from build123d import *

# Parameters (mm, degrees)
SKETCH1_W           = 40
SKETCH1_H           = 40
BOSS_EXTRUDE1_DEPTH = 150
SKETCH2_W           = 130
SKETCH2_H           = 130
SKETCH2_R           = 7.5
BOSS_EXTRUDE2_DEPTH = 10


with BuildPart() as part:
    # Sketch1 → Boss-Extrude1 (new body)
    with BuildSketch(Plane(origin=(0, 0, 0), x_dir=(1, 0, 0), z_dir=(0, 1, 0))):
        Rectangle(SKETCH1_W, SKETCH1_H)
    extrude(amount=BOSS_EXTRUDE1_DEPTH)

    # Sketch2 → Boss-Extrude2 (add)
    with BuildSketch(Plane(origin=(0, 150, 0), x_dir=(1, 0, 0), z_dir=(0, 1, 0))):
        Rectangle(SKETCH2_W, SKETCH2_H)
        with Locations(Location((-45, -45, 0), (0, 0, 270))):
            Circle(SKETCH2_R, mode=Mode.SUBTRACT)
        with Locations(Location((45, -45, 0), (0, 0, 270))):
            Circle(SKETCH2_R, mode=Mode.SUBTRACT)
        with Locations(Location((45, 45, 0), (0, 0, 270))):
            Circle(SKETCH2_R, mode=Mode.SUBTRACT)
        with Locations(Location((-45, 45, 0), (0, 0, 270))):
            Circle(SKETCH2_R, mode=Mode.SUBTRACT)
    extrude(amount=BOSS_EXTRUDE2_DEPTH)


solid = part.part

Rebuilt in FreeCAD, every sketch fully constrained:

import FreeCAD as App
import Part
import Sketcher
from FreeCAD import Vector
Q = App.Units.Quantity

doc = App.newDocument("Part")
body = doc.addObject("PartDesign::Body", "Body")

# Sketch on XZ plane
sketch1 = doc.addObject("Sketcher::SketchObject", "Sketch")
body.addObject(sketch1)
sketch1.AttachmentSupport = (doc.XZ_Plane, [""])
sketch1.MapMode = "FlatFace"
sketch1.addGeometry([
    Part.LineSegment(Vector(-20, -20, 0), Vector(-20, 20, 0)),
    Part.LineSegment(Vector(-20, 20, 0), Vector(20, 20, 0)),
    Part.LineSegment(Vector(20, 20, 0), Vector(20, -20, 0)),
    Part.LineSegment(Vector(20, -20, 0), Vector(-20, -20, 0)),
], False)
sketch1.addConstraint([
    Sketcher.Constraint("Coincident", 0, 2, 1, 1),
    Sketcher.Constraint("Coincident", 1, 2, 2, 1),
    Sketcher.Constraint("Coincident", 2, 2, 3, 1),
    Sketcher.Constraint("Coincident", 3, 2, 0, 1),
    Sketcher.Constraint("Vertical", 0),
    Sketcher.Constraint("Horizontal", 1),
    Sketcher.Constraint("Vertical", 2),
    Sketcher.Constraint("Horizontal", 3),
    Sketcher.Constraint("Symmetric", 0, 2, 2, 2, -1, 1),
    Sketcher.Constraint("Equal", 3, 0),
    Sketcher.Constraint("DistanceX", 1, 1, 1, 2, Q("40 mm")),
])
pad1 = doc.addObject("PartDesign::Pad", "Pad")
body.addObject(pad1)
pad1.Profile = sketch1
pad1.Length = 150
pad1.Reversed = True

# Sketch on XZ plane
sketch2 = doc.addObject("Sketcher::SketchObject", "Sketch001")
body.addObject(sketch2)
sketch2.AttachmentSupport = (doc.XZ_Plane, [""])
sketch2.MapMode = "FlatFace"
sketch2.AttachmentOffset = App.Placement(Vector(0, 0, -150), App.Rotation())
sketch2.addGeometry([
    Part.LineSegment(Vector(-65, -65, 0), Vector(-65, 65, 0)),  # 0
    Part.LineSegment(Vector(-65, 65, 0), Vector(65, 65, 0)),  # 1
    Part.LineSegment(Vector(65, 65, 0), Vector(65, -65, 0)),  # 2
    Part.LineSegment(Vector(65, -65, 0), Vector(-65, -65, 0)),  # 3
    Part.Circle(Vector(-45, 45, 0), Vector(0, 0, 1), 8),  # 4
    Part.Circle(Vector(45, 45, 0), Vector(0, 0, 1), 8),  # 5
    Part.Circle(Vector(-45, -45, 0), Vector(0, 0, 1), 8),  # 6
    Part.Circle(Vector(45, -45, 0), Vector(0, 0, 1), 8),  # 7
], False)
sketch2.addConstraint([
    Sketcher.Constraint("Coincident", 0, 2, 1, 1),
    Sketcher.Constraint("Coincident", 1, 2, 2, 1),
    Sketcher.Constraint("Coincident", 2, 2, 3, 1),
    Sketcher.Constraint("Coincident", 3, 2, 0, 1),
    Sketcher.Constraint("Vertical", 0),
    Sketcher.Constraint("Horizontal", 1),
    Sketcher.Constraint("Vertical", 2),
    Sketcher.Constraint("Horizontal", 3),
    Sketcher.Constraint("Equal", 4, 5),
    Sketcher.Constraint("Equal", 5, 6),
    Sketcher.Constraint("Equal", 6, 7),
    Sketcher.Constraint("Symmetric", 5, 3, 6, 3, -1, 1),
    Sketcher.Constraint("Symmetric", 4, 3, 7, 3, -1, 1),
    Sketcher.Constraint("Symmetric", 0, 2, 2, 2, -1, 1),
    Sketcher.Constraint("Symmetric", 4, 3, 5, 3, -2),
    Sketcher.Constraint("Equal", 3, 0),
    Sketcher.Constraint("Diameter", 4, Q("15 mm")),
    Sketcher.Constraint("DistanceX", 1, 1, 1, 2, Q("130 mm")),
    Sketcher.Constraint("DistanceX", 4, 3, -1, 1, Q("45 mm")),
    Sketcher.Constraint("DistanceY", -1, 1, 4, 3, Q("45 mm")),
])
pad2 = doc.addObject("PartDesign::Pad", "Pad001")
body.addObject(pad2)
pad2.Profile = sketch2
pad2.Length = 10
pad2.Reversed = True

doc.recompute()
